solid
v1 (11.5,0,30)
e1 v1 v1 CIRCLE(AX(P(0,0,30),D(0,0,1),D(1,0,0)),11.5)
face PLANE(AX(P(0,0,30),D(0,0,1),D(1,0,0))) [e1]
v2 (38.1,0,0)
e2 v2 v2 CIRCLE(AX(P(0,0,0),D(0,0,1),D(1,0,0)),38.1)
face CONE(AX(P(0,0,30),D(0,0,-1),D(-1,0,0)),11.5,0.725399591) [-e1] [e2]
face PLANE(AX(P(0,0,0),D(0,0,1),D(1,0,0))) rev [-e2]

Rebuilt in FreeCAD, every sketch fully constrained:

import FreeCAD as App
import Part
import Sketcher
from FreeCAD import Vector
Q = App.Units.Quantity

doc = App.newDocument("Part")
params = doc.addObject("Spreadsheet::Sheet", "Params")
for row, (alias, value) in enumerate([
    ("sketch1_diameter", "76.2 mm"),
    ("sketch2_diameter", "23 mm"),
], start=1):
    params.set(f"A{row}", alias)
    params.set(f"B{row}", "=" + value)
    params.setAlias(f"B{row}", alias)

body = doc.addObject("PartDesign::Body", "Body")

sketch1 = body.newObject("Sketcher::SketchObject", "Sketch")
sketch1.AttachmentSupport = (doc.getObject("XY_Plane"), [""])
sketch1.MapMode = "FlatFace"
sketch1.addGeometry(Part.Circle(Vector(0, 0, 0), Vector(0, 0, 1), 38), False)
sketch1.addConstraint([
    Sketcher.Constraint("Coincident", 0, 3, -1, 1),
    Sketcher.Constraint("Diameter", 0, Q("76.2 mm")),
])
sketch1.setExpression("Constraints[1]", "Params.sketch1_diameter")

sketch2 = body.newObject("Sketcher::SketchObject", "Sketch001")
sketch2.AttachmentSupport = (doc.getObject("XY_Plane"), [""])
sketch2.MapMode = "FlatFace"
sketch2.AttachmentOffset = App.Placement(Vector(0, 0, 30), App.Rotation())
sketch2.addGeometry(Part.Circle(Vector(0, 0, 0), Vector(0, 0, 1), 12), False)
sketch2.addConstraint([
    Sketcher.Constraint("Coincident", 0, 3, -1, 1),
    Sketcher.Constraint("Diameter", 0, Q("23 mm")),
])
sketch2.setExpression("Constraints[1]", "Params.sketch2_diameter")

additiveloft = body.newObject("PartDesign::AdditiveLoft", "AdditiveLoft")
additiveloft.Profile = sketch1
additiveloft.Sections = [sketch2]

doc.recompute()
